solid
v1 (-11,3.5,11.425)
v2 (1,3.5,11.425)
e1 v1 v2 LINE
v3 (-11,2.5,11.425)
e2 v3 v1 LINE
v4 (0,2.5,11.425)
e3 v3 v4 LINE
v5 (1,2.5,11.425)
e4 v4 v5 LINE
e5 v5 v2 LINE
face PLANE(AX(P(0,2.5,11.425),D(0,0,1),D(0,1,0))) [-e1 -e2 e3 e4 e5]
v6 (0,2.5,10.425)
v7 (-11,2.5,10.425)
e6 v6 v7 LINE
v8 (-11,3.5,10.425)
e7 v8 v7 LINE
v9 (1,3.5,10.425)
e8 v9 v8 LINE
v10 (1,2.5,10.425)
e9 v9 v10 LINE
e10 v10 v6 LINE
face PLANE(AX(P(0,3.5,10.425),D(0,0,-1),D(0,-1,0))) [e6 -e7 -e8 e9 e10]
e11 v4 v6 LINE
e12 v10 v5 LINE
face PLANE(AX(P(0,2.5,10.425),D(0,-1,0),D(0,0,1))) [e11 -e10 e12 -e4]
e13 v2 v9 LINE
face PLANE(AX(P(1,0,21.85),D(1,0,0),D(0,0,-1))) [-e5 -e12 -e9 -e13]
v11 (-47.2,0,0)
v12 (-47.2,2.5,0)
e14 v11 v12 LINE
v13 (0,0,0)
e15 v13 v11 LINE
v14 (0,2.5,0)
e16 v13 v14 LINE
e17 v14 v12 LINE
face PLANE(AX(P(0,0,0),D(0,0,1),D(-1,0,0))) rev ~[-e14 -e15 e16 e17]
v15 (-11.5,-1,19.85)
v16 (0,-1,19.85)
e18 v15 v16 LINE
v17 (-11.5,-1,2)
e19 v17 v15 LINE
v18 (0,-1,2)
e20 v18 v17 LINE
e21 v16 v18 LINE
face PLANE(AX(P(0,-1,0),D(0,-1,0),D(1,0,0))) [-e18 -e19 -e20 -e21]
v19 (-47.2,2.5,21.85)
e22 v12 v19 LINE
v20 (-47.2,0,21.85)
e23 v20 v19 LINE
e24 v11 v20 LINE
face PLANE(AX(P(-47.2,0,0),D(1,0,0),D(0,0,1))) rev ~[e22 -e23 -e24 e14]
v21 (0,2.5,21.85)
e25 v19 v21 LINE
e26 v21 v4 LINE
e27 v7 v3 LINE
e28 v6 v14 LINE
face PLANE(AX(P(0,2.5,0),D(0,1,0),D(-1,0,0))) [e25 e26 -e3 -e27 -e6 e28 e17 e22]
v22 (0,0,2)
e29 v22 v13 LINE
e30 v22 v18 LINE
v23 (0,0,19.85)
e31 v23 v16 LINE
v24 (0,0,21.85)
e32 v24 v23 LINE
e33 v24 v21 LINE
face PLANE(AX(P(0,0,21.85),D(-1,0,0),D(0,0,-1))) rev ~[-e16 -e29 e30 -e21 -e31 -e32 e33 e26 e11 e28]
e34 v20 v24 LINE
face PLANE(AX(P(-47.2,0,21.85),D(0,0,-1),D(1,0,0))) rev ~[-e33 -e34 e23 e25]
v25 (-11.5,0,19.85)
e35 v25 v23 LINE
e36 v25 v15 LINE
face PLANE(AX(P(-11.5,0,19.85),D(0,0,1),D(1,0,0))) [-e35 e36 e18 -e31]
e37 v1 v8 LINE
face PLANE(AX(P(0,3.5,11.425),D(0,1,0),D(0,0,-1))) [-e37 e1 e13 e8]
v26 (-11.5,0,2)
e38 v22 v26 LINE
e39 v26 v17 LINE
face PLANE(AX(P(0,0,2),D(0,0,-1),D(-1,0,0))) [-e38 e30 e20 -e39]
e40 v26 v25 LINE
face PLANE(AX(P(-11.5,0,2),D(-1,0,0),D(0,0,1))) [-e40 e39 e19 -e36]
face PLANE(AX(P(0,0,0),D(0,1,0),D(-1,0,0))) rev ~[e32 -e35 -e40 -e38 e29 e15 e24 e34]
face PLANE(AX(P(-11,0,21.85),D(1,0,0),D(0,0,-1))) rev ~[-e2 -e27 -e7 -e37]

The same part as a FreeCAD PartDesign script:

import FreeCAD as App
import Part
import Sketcher
Q = App.Units.Quantity

doc = App.newDocument("Part")
body = doc.addObject("PartDesign::Body", "Body")

# Sketch on XZ plane
sketch1 = doc.addObject("Sketcher::SketchObject", "Sketch")
body.addObject(sketch1)
sketch1.AttachmentSupport = (doc.XZ_Plane, [""])
sketch1.MapMode = "FlatFace"
sketch1.addGeometry(Part.LineSegment(App.Vector(0, 22, 0), App.Vector(0, 0, 0)), False)
sketch1.addGeometry(Part.LineSegment(App.Vector(0, 0, 0), App.Vector(-47, 0, 0)), False)
sketch1.addGeometry(Part.LineSegment(App.Vector(-47, 0, 0), App.Vector(-47, 22, 0)), False)
sketch1.addGeometry(Part.LineSegment(App.Vector(-47, 22, 0), App.Vector(0, 22, 0)), False)
sketch1.addConstraint(Sketcher.Constraint("Coincident", 0, 2, 1, 1))
sketch1.addConstraint(Sketcher.Constraint("Coincident", 1, 2, 2, 1))
sketch1.addConstraint(Sketcher.Constraint("Coincident", 2, 2, 3, 1))
sketch1.addConstraint(Sketcher.Constraint("Coincident", 3, 2, 0, 1))
sketch1.addConstraint(Sketcher.Constraint("Vertical", 0))
sketch1.addConstraint(Sketcher.Constraint("Horizontal", 1))
sketch1.addConstraint(Sketcher.Constraint("Vertical", 2))
sketch1.addConstraint(Sketcher.Constraint("Horizontal", 3))
sketch1.addConstraint(Sketcher.Constraint("Coincident", 0, 2, -1, 1))
sketch1.addConstraint(Sketcher.Constraint("DistanceX", 1, 2, 1, 1, Q("47.2 mm")))
sketch1.addConstraint(Sketcher.Constraint("DistanceY", 0, 2, 0, 1, Q("21.85 mm")))
pad1 = doc.addObject("PartDesign::Pad", "Pad")
body.addObject(pad1)
pad1.Profile = sketch1
pad1.Length = 2.5
pad1.Reversed = True

# Sketch on YZ plane
sketch2 = doc.addObject("Sketcher::SketchObject", "Sketch001")
body.addObject(sketch2)
sketch2.AttachmentSupport = (doc.YZ_Plane, [""])
sketch2.MapMode = "FlatFace"
sketch2.addGeometry(Part.LineSegment(App.Vector(3.5, 10.4, 0), App.Vector(3.5, 11.4, 0)), False)
sketch2.addGeometry(Part.LineSegment(App.Vector(3.5, 11.4, 0), App.Vector(2.5, 11.4, 0)), False)
sketch2.addGeometry(Part.LineSegment(App.Vector(2.5, 11.4, 0), App.Vector(2.5, 10.4, 0)), False)
sketch2.addGeometry(Part.LineSegment(App.Vector(2.5, 10.4, 0), App.Vector(3.5, 10.4, 0)), False)
sketch2.addConstraint(Sketcher.Constraint("Coincident", 0, 2, 1, 1))
sketch2.addConstraint(Sketcher.Constraint("Coincident", 1, 2, 2, 1))
sketch2.addConstraint(Sketcher.Constraint("Coincident", 2, 2, 3, 1))
sketch2.addConstraint(Sketcher.Constraint("Coincident", 3, 2, 0, 1))
sketch2.addConstraint(Sketcher.Constraint("Vertical", 0))
sketch2.addConstraint(Sketcher.Constraint("Horizontal", 1))
sketch2.addConstraint(Sketcher.Constraint("Vertical", 2))
sketch2.addConstraint(Sketcher.Constraint("Horizontal", 3))
sketch2.addConstraint(Sketcher.Constraint("Equal", 3, 0))
sketch2.addConstraint(Sketcher.Constraint("DistanceX", 1, 2, 1, 1, Q("1 mm")))
sketch2.addConstraint(Sketcher.Constraint("DistanceX", -1, 1, 0, 2, Q("3.5 mm")))
sketch2.addConstraint(Sketcher.Constraint("DistanceY", -1, 1, 0, 2, Q("11.425 mm")))
pad2 = doc.addObject("PartDesign::Pad", "Pad001")
body.addObject(pad2)
pad2.Profile = sketch2
pad2.Type = "TwoLengths"
pad2.Length = 1
pad2.Length2 = 11

# Sketch on XZ plane
sketch3 = doc.addObject("Sketcher::SketchObject", "Sketch002")
body.addObject(sketch3)
sketch3.AttachmentSupport = (doc.XZ_Plane, [""])
sketch3.MapMode = "FlatFace"
sketch3.addGeometry(Part.LineSegment(App.Vector(0, 2, 0), App.Vector(0, 20, 0)), False)
sketch3.addGeometry(Part.LineSegment(App.Vector(0, 20, 0), App.Vector(-12, 20, 0)), False)
sketch3.addGeometry(Part.LineSegment(App.Vector(-12, 20, 0), App.Vector(-12, 2, 0)), False)
sketch3.addGeometry(Part.LineSegment(App.Vector(-12, 2, 0), App.Vector(0, 2, 0)), False)
sketch3.addConstraint(Sketcher.Constraint("Coincident", 0, 2, 1, 1))
sketch3.addConstraint(Sketcher.Constraint("Coincident", 1, 2, 2, 1))
sketch3.addConstraint(Sketcher.Constraint("Coincident", 2, 2, 3, 1))
sketch3.addConstraint(Sketcher.Constraint("Coincident", 3, 2, 0, 1))
sketch3.addConstraint(Sketcher.Constraint("Vertical", 0))
sketch3.addConstraint(Sketcher.Constraint("Horizontal", 1))
sketch3.addConstraint(Sketcher.Constraint("Vertical", 2))
sketch3.addConstraint(Sketcher.Constraint("Horizontal", 3))
sketch3.addConstraint(Sketcher.Constraint("PointOnObject", 0, 2, -2))
sketch3.addConstraint(Sketcher.Constraint("DistanceX", 1, 2, 1, 1, Q("11.5 mm")))
sketch3.addConstraint(Sketcher.Constraint("DistanceY", -1, 1, 2, 2, Q("2 mm")))
sketch3.addConstraint(Sketcher.Constraint("DistanceY", 0, 1, 0, 2, Q("17.85 mm")))
pad3 = doc.addObject("PartDesign::Pad", "Pad002")
body.addObject(pad3)
pad3.Profile = sketch3
pad3.Length = 1

doc.recompute()
